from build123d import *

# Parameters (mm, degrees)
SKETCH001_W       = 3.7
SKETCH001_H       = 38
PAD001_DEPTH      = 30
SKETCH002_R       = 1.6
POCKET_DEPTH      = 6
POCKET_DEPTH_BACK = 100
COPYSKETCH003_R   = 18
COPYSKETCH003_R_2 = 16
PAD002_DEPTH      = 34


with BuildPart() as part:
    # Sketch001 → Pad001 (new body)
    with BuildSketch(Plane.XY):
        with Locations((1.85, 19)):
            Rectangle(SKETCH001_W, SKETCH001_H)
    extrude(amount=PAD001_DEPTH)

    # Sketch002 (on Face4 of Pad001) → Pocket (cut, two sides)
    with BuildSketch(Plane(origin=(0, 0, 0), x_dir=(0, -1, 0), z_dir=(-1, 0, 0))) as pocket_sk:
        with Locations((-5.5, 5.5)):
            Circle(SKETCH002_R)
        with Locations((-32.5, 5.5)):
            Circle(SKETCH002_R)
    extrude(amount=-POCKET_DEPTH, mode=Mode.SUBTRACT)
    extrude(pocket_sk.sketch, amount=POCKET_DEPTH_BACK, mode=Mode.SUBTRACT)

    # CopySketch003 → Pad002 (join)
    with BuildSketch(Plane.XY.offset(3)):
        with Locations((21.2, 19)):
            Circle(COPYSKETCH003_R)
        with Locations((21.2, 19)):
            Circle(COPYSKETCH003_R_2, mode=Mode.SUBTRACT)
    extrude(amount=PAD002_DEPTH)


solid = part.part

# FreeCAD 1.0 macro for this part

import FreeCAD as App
import Part
import Sketcher

V = App.Vector

doc = App.newDocument("Part")
body = doc.addObject("PartDesign::Body", "Body")

sketch1 = body.newObject("Sketcher::SketchObject", "Sketch")
sketch1.AttachmentSupport = (doc.getObject("XY_Plane"), [""])
sketch1.MapMode = "FlatFace"
sketch1.addGeometry([
    Part.LineSegment(V(0, 38, 0), V(0, 0, 0)),
    Part.LineSegment(V(0, 0, 0), V(3.7, 0, 0)),
    Part.LineSegment(V(3.7, 0, 0), V(3.7, 38, 0)),
    Part.LineSegment(V(3.7, 38, 0), V(0, 38, 0)),
], False)
sketch1.addConstraint([
    Sketcher.Constraint("Coincident", 0, 2, 1, 1),
    Sketcher.Constraint("Coincident", 1, 2, 2, 1),
    Sketcher.Constraint("Coincident", 2, 2, 3, 1),
    Sketcher.Constraint("Coincident", 3, 2, 0, 1),
    Sketcher.Constraint("Vertical", 0),
    Sketcher.Constraint("Horizontal", 1),
    Sketcher.Constraint("Vertical", 2),
    Sketcher.Constraint("Horizontal", 3),
    Sketcher.Constraint("Coincident", 0, 2, -1, 1),
    Sketcher.Constraint("DistanceY", 0, 2, 0, 1, 38.0),
    Sketcher.Constraint("DistanceX", 1, 1, 1, 2, 3.7),
])
pad1 = body.newObject("PartDesign::Pad", "Pad")
pad1.Profile = sketch1
pad1.Length = 30

sketch2 = body.newObject("Sketcher::SketchObject", "Sketch001")
sketch2.AttachmentSupport = (doc.getObject("YZ_Plane"), [""])
sketch2.MapMode = "FlatFace"
sketch2.addGeometry([
    Part.Circle(V(5.5, 5.5, 0), V(0, 0, 1), 1.6),
    Part.Circle(V(32.5, 5.5, 0), V(0, 0, 1), 1.6),
], False)
sketch2.addConstraint([
    Sketcher.Constraint("Equal", 0, 1),
    Sketcher.Constraint("Horizontal", 0, 3, 1, 3),
    Sketcher.Constraint("Diameter", 0, 3.2),
    Sketcher.Constraint("DistanceX", 0, 3, 1, 3, 27.0),
    Sketcher.Constraint("DistanceX", -1, 1, 0, 3, 5.5),
    Sketcher.Constraint("DistanceY", -1, 1, 0, 3, 5.5),
])
pocket1 = body.newObject("PartDesign::Pocket", "Pocket")
pocket1.Profile = sketch2
pocket1.Type = "ThroughAll"
pocket1.Midplane = True

sketch3 = body.newObject("Sketcher::SketchObject", "Sketch002")
sketch3.AttachmentSupport = (doc.getObject("XY_Plane"), [""])
sketch3.MapMode = "FlatFace"
sketch3.AttachmentOffset = App.Placement(V(0, 0, 3), App.Rotation())
sketch3.addGeometry([
    Part.Circle(V(21, 19, 0), V(0, 0, 1), 18),
    Part.Circle(V(21, 19, 0), V(0, 0, 1), 16),
], False)
sketch3.addConstraint([
    Sketcher.Constraint("Coincident", 1, 3, 0, 3),
    Sketcher.Constraint("Diameter", 0, 36.0),
    Sketcher.Constraint("Diameter", 1, 32.0),
    Sketcher.Constraint("DistanceY", -1, 1, 0, 3, 19.0),
    Sketcher.Constraint("DistanceX", -1, 1, 0, 3, 21.2),
])
pad2 = body.newObject("PartDesign::Pad", "Pad001")
pad2.Profile = sketch3
pad2.Length = 34

doc.recompute()
